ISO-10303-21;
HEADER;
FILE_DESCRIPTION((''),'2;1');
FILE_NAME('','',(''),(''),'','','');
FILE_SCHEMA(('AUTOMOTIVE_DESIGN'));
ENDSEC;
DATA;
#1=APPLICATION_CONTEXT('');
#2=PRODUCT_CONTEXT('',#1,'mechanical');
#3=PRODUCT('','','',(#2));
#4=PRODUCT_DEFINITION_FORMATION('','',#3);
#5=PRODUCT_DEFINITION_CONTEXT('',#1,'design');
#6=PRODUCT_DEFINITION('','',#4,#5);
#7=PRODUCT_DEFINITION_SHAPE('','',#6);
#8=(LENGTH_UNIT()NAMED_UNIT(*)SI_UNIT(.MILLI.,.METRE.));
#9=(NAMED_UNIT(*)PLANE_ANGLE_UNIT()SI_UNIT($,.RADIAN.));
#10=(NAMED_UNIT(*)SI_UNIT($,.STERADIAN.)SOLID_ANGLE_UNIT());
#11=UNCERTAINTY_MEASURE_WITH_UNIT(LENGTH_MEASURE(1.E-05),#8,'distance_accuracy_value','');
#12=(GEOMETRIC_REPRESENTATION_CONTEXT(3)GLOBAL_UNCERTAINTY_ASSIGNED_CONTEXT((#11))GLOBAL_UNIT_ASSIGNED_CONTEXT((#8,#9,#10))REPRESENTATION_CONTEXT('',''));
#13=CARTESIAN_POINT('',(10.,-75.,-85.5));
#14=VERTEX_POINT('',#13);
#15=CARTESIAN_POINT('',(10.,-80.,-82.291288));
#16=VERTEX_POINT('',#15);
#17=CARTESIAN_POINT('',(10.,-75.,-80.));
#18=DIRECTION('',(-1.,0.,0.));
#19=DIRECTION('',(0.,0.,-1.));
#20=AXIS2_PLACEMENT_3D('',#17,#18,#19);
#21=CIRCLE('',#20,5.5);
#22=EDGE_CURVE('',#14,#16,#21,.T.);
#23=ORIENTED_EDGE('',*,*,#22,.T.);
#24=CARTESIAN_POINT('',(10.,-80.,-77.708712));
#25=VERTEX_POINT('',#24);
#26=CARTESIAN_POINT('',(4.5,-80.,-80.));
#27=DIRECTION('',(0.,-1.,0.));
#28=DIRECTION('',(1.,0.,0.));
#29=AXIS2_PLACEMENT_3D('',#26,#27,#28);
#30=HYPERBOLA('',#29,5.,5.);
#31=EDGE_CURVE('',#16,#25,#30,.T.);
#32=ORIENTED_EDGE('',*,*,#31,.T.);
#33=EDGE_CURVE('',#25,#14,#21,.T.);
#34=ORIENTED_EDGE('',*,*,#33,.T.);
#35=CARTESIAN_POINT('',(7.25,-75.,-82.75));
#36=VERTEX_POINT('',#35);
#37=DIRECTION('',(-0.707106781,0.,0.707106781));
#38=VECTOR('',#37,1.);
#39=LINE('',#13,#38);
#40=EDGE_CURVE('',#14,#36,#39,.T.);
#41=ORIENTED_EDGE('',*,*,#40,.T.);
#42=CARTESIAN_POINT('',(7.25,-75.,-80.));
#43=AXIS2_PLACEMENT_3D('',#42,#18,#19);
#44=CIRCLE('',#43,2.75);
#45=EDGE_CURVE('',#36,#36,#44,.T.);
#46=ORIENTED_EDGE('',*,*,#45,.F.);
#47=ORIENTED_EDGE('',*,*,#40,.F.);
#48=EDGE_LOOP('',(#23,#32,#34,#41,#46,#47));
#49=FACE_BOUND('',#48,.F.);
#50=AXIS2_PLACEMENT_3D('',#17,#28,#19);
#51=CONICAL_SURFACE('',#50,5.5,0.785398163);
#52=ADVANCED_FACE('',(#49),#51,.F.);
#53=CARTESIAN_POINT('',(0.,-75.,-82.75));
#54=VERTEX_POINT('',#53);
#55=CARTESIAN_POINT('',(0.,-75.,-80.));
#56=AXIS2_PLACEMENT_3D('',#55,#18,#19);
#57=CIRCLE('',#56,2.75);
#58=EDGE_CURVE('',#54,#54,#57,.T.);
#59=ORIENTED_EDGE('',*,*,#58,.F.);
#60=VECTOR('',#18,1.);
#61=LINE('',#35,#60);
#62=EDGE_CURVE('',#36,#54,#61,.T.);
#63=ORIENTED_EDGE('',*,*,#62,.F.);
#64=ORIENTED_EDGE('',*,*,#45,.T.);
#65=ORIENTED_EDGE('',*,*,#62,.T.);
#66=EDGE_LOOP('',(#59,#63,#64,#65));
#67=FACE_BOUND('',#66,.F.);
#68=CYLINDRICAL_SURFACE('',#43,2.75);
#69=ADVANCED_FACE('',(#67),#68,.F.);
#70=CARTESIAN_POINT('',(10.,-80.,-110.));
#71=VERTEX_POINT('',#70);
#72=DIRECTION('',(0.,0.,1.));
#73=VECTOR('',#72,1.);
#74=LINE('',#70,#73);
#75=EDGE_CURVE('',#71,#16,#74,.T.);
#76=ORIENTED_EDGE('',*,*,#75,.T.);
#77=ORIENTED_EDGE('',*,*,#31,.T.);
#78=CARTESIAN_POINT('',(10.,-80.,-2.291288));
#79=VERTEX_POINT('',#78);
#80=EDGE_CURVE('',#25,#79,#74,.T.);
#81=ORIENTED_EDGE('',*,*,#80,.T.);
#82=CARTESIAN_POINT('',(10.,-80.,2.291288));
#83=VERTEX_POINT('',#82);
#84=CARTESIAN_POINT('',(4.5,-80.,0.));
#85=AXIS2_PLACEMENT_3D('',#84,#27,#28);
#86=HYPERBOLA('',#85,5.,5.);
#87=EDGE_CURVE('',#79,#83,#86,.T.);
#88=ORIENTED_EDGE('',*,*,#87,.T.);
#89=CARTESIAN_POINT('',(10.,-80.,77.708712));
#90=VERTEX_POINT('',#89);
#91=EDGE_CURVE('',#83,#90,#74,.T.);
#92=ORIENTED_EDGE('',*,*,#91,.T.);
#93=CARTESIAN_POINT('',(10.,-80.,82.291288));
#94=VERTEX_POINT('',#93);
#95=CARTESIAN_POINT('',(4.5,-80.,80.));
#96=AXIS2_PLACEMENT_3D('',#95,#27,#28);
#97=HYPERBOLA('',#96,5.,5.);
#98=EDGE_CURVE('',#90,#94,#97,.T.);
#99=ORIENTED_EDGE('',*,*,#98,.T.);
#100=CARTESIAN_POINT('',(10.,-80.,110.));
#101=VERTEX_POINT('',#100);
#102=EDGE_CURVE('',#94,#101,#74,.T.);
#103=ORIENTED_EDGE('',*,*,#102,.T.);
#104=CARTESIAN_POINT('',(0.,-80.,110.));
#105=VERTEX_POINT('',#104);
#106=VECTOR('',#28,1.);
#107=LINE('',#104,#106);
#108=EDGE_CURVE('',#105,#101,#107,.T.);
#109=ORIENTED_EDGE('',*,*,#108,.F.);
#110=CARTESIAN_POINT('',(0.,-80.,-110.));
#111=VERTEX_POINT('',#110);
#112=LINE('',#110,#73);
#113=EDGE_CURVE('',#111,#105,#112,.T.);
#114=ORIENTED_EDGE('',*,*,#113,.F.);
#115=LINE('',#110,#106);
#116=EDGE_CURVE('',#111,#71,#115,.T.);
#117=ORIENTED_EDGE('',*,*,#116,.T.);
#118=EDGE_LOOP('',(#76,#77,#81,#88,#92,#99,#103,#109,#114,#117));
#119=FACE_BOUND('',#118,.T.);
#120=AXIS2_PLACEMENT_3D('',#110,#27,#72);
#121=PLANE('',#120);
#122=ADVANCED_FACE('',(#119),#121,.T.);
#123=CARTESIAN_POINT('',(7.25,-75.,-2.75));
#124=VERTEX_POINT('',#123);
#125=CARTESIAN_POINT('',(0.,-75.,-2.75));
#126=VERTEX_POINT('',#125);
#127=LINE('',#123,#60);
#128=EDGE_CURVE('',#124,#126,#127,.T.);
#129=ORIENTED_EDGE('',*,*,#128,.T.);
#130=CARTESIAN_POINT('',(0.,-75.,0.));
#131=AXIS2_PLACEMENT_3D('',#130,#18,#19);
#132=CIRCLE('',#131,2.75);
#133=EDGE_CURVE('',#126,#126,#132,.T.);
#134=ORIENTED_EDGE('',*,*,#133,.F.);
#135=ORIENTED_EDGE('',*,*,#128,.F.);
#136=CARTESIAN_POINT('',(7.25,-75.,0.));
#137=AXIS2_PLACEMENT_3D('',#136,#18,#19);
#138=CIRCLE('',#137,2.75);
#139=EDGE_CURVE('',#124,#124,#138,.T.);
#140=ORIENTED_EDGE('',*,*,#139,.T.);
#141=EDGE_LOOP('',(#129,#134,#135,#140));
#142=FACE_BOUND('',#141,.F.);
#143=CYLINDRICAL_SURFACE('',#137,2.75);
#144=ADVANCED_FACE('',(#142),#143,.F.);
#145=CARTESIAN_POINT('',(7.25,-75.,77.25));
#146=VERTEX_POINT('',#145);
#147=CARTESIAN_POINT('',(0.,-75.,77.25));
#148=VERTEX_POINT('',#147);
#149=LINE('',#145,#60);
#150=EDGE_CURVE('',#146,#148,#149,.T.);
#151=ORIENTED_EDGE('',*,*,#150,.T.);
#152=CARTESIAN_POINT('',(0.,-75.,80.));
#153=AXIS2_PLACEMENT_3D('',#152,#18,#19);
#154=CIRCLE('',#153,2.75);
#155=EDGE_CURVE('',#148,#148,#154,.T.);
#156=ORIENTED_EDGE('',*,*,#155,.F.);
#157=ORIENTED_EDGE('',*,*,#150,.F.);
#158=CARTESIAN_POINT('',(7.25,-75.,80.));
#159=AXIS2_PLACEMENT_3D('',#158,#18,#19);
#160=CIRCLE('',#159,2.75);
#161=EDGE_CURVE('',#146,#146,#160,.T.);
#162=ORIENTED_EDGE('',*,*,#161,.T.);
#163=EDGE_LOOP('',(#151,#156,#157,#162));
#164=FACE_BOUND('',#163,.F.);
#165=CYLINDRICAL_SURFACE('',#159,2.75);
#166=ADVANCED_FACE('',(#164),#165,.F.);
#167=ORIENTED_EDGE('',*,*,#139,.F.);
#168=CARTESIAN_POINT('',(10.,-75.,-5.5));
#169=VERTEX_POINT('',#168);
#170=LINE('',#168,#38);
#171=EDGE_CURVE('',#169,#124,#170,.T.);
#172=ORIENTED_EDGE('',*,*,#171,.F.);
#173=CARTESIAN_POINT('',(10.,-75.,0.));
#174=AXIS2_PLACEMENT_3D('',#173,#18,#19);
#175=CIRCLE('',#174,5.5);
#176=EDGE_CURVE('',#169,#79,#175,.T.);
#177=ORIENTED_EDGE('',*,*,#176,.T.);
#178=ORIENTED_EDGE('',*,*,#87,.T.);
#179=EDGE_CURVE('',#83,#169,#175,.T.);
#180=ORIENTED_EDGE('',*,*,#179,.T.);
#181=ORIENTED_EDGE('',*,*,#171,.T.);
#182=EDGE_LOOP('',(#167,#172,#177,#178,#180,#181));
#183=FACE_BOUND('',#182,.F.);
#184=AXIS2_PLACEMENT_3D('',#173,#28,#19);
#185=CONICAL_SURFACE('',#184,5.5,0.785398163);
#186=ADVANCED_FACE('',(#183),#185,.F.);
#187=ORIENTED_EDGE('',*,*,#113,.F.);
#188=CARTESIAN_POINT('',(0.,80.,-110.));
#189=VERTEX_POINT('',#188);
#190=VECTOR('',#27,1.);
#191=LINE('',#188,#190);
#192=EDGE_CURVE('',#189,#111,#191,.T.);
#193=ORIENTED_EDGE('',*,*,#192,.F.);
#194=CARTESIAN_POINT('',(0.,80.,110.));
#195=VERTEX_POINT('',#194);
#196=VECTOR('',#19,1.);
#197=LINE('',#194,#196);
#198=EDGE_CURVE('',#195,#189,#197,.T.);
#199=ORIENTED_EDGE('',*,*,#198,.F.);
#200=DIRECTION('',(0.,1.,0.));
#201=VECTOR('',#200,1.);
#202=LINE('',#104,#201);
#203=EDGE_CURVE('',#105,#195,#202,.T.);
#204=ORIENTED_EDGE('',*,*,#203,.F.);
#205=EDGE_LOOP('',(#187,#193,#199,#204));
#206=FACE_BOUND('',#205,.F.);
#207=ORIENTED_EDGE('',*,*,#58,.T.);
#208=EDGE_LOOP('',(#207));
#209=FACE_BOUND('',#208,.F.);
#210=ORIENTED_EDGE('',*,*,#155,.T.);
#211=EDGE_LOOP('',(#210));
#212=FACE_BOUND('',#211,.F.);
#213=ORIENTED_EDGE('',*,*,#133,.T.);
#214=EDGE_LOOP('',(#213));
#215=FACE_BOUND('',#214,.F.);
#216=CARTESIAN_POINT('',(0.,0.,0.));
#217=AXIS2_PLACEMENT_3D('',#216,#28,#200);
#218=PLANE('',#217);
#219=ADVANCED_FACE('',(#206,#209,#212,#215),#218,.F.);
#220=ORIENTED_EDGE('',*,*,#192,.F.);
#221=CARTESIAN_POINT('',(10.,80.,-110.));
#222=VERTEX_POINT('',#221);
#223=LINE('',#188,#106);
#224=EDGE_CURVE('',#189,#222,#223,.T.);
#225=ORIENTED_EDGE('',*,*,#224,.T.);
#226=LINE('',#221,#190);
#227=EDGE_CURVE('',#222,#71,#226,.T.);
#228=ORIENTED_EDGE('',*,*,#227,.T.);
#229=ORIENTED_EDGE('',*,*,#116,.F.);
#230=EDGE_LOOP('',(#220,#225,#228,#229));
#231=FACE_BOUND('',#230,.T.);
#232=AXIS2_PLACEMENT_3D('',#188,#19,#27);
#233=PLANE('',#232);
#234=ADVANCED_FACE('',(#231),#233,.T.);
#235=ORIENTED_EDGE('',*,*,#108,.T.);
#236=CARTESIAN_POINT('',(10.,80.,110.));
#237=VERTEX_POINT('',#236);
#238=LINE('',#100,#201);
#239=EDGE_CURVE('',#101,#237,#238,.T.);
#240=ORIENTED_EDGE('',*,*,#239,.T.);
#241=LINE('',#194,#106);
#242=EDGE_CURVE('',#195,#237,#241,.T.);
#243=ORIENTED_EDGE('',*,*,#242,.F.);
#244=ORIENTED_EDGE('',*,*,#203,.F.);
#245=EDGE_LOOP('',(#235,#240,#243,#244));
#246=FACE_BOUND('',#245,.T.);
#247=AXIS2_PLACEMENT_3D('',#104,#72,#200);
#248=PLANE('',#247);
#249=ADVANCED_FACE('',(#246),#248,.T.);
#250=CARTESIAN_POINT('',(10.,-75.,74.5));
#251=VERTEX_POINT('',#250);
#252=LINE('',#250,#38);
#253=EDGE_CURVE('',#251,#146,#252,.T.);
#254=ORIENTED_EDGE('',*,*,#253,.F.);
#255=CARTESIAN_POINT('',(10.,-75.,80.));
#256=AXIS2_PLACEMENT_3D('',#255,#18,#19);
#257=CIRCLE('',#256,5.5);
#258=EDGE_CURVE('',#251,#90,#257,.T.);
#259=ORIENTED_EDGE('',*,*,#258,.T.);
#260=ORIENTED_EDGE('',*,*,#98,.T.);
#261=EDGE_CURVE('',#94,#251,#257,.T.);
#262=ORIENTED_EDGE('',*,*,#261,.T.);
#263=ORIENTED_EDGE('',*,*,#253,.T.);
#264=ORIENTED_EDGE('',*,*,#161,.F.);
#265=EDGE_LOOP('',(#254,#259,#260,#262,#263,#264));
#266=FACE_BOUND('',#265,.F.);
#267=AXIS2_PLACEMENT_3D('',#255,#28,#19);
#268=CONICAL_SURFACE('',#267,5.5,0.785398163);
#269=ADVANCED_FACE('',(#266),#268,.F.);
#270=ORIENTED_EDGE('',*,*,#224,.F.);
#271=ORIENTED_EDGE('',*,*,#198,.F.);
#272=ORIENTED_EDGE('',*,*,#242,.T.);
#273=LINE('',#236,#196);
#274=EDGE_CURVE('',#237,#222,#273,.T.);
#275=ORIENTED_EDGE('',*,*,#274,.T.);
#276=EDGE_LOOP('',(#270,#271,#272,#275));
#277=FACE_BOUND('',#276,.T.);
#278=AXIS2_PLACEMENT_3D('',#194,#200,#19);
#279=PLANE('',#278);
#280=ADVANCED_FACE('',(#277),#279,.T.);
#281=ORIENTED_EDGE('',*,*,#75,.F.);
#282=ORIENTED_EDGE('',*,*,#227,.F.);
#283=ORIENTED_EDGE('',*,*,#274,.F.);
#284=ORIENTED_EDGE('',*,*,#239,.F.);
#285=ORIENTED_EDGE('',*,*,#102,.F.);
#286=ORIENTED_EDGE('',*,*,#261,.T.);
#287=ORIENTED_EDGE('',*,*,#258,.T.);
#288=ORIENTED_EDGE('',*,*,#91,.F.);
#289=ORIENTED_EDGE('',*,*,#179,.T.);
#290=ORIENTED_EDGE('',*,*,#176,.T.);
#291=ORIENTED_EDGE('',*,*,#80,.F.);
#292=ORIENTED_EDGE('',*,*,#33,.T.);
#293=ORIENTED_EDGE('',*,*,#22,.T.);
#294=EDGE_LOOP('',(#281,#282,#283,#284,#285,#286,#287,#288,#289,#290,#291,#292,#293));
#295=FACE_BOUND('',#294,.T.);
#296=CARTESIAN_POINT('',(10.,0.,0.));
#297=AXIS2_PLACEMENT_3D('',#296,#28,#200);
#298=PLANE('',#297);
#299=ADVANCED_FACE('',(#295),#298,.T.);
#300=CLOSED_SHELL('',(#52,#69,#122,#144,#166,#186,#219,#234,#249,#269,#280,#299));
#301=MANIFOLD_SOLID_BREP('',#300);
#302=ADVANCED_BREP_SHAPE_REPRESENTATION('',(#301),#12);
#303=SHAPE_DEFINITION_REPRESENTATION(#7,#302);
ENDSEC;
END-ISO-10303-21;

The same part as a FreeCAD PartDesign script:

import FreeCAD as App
import Part
import Sketcher
Q = App.Units.Quantity

doc = App.newDocument("Part")
body = doc.addObject("PartDesign::Body", "Body")

sketch1 = body.newObject("Sketcher::SketchObject", "Sketch")
sketch1.AttachmentSupport = (doc.getObject("YZ_Plane"), [""])
sketch1.MapMode = "FlatFace"
sketch1.addGeometry([
    Part.LineSegment(App.Vector(80, 110, 0), App.Vector(-80, 110, 0)),
    Part.LineSegment(App.Vector(-80, 110, 0), App.Vector(-80, -110, 0)),
    Part.LineSegment(App.Vector(-80, -110, 0), App.Vector(80, -110, 0)),
    Part.LineSegment(App.Vector(80, -110, 0), App.Vector(80, 110, 0)),
], False)
sketch1.addConstraint([
    Sketcher.Constraint("Coincident", 0, 2, 1, 1),
    Sketcher.Constraint("Coincident", 1, 2, 2, 1),
    Sketcher.Constraint("Coincident", 2, 2, 3, 1),
    Sketcher.Constraint("Coincident", 3, 2, 0, 1),
    Sketcher.Constraint("Horizontal", 0),
    Sketcher.Constraint("Vertical", 1),
    Sketcher.Constraint("Horizontal", 2),
    Sketcher.Constraint("Vertical", 3),
    Sketcher.Constraint("Symmetric", 0, 2, 2, 2, -1, 1),
    Sketcher.Constraint("DistanceX", 0, 2, 0, 1, Q("160 mm")),
    Sketcher.Constraint("DistanceY", 1, 2, 1, 1, Q("220 mm")),
])
pad1 = body.newObject("PartDesign::Pad", "Pad")
pad1.Profile = sketch1
pad1.Length = 10

sketch2 = body.newObject("Sketcher::SketchObject", "Sketch001")
sketch2.AttachmentSupport = (doc.getObject("YZ_Plane"), [""])
sketch2.MapMode = "FlatFace"
sketch2.AttachmentOffset = App.Placement(App.Vector(0, 0, 10), App.Rotation())
sketch2.addGeometry([
    Part.Circle(App.Vector(-75, 80, 0), App.Vector(0, 0, 1), 2.8),
    Part.Circle(App.Vector(-75, 0, 0), App.Vector(0, 0, 1), 2.8),
    Part.Circle(App.Vector(-75, -80, 0), App.Vector(0, 0, 1), 2.8),
], False)
sketch2.addConstraint([
    Sketcher.Constraint("Equal", 0, 1),
    Sketcher.Constraint("Equal", 1, 2),
    Sketcher.Constraint("Symmetric", 0, 3, 2, 3, -1),
    Sketcher.Constraint("PointOnObject", 1, 3, -1),
    Sketcher.Constraint("Vertical", 0, 3, 1, 3),
    Sketcher.Constraint("Diameter", 0, Q("5.5 mm")),
    Sketcher.Constraint("DistanceX", 0, 3, -1, 1, Q("75 mm")),
    Sketcher.Constraint("DistanceY", -1, 1, 0, 3, Q("80 mm")),
])
doc.recompute()
hole = body.newObject("PartDesign::Hole", "Hole")
hole.Profile = sketch2
hole.ThreadType = "None"
hole.Diameter = 5.5
hole.DepthType = "Dimension"
hole.Depth = 20
hole.DrillPoint = "Angled"
hole.DrillPointAngle = 118
hole.HoleCutType = "Countersink"
hole.HoleCutDiameter = 11
hole.HoleCutCountersinkAngle = 90

doc.recompute()
